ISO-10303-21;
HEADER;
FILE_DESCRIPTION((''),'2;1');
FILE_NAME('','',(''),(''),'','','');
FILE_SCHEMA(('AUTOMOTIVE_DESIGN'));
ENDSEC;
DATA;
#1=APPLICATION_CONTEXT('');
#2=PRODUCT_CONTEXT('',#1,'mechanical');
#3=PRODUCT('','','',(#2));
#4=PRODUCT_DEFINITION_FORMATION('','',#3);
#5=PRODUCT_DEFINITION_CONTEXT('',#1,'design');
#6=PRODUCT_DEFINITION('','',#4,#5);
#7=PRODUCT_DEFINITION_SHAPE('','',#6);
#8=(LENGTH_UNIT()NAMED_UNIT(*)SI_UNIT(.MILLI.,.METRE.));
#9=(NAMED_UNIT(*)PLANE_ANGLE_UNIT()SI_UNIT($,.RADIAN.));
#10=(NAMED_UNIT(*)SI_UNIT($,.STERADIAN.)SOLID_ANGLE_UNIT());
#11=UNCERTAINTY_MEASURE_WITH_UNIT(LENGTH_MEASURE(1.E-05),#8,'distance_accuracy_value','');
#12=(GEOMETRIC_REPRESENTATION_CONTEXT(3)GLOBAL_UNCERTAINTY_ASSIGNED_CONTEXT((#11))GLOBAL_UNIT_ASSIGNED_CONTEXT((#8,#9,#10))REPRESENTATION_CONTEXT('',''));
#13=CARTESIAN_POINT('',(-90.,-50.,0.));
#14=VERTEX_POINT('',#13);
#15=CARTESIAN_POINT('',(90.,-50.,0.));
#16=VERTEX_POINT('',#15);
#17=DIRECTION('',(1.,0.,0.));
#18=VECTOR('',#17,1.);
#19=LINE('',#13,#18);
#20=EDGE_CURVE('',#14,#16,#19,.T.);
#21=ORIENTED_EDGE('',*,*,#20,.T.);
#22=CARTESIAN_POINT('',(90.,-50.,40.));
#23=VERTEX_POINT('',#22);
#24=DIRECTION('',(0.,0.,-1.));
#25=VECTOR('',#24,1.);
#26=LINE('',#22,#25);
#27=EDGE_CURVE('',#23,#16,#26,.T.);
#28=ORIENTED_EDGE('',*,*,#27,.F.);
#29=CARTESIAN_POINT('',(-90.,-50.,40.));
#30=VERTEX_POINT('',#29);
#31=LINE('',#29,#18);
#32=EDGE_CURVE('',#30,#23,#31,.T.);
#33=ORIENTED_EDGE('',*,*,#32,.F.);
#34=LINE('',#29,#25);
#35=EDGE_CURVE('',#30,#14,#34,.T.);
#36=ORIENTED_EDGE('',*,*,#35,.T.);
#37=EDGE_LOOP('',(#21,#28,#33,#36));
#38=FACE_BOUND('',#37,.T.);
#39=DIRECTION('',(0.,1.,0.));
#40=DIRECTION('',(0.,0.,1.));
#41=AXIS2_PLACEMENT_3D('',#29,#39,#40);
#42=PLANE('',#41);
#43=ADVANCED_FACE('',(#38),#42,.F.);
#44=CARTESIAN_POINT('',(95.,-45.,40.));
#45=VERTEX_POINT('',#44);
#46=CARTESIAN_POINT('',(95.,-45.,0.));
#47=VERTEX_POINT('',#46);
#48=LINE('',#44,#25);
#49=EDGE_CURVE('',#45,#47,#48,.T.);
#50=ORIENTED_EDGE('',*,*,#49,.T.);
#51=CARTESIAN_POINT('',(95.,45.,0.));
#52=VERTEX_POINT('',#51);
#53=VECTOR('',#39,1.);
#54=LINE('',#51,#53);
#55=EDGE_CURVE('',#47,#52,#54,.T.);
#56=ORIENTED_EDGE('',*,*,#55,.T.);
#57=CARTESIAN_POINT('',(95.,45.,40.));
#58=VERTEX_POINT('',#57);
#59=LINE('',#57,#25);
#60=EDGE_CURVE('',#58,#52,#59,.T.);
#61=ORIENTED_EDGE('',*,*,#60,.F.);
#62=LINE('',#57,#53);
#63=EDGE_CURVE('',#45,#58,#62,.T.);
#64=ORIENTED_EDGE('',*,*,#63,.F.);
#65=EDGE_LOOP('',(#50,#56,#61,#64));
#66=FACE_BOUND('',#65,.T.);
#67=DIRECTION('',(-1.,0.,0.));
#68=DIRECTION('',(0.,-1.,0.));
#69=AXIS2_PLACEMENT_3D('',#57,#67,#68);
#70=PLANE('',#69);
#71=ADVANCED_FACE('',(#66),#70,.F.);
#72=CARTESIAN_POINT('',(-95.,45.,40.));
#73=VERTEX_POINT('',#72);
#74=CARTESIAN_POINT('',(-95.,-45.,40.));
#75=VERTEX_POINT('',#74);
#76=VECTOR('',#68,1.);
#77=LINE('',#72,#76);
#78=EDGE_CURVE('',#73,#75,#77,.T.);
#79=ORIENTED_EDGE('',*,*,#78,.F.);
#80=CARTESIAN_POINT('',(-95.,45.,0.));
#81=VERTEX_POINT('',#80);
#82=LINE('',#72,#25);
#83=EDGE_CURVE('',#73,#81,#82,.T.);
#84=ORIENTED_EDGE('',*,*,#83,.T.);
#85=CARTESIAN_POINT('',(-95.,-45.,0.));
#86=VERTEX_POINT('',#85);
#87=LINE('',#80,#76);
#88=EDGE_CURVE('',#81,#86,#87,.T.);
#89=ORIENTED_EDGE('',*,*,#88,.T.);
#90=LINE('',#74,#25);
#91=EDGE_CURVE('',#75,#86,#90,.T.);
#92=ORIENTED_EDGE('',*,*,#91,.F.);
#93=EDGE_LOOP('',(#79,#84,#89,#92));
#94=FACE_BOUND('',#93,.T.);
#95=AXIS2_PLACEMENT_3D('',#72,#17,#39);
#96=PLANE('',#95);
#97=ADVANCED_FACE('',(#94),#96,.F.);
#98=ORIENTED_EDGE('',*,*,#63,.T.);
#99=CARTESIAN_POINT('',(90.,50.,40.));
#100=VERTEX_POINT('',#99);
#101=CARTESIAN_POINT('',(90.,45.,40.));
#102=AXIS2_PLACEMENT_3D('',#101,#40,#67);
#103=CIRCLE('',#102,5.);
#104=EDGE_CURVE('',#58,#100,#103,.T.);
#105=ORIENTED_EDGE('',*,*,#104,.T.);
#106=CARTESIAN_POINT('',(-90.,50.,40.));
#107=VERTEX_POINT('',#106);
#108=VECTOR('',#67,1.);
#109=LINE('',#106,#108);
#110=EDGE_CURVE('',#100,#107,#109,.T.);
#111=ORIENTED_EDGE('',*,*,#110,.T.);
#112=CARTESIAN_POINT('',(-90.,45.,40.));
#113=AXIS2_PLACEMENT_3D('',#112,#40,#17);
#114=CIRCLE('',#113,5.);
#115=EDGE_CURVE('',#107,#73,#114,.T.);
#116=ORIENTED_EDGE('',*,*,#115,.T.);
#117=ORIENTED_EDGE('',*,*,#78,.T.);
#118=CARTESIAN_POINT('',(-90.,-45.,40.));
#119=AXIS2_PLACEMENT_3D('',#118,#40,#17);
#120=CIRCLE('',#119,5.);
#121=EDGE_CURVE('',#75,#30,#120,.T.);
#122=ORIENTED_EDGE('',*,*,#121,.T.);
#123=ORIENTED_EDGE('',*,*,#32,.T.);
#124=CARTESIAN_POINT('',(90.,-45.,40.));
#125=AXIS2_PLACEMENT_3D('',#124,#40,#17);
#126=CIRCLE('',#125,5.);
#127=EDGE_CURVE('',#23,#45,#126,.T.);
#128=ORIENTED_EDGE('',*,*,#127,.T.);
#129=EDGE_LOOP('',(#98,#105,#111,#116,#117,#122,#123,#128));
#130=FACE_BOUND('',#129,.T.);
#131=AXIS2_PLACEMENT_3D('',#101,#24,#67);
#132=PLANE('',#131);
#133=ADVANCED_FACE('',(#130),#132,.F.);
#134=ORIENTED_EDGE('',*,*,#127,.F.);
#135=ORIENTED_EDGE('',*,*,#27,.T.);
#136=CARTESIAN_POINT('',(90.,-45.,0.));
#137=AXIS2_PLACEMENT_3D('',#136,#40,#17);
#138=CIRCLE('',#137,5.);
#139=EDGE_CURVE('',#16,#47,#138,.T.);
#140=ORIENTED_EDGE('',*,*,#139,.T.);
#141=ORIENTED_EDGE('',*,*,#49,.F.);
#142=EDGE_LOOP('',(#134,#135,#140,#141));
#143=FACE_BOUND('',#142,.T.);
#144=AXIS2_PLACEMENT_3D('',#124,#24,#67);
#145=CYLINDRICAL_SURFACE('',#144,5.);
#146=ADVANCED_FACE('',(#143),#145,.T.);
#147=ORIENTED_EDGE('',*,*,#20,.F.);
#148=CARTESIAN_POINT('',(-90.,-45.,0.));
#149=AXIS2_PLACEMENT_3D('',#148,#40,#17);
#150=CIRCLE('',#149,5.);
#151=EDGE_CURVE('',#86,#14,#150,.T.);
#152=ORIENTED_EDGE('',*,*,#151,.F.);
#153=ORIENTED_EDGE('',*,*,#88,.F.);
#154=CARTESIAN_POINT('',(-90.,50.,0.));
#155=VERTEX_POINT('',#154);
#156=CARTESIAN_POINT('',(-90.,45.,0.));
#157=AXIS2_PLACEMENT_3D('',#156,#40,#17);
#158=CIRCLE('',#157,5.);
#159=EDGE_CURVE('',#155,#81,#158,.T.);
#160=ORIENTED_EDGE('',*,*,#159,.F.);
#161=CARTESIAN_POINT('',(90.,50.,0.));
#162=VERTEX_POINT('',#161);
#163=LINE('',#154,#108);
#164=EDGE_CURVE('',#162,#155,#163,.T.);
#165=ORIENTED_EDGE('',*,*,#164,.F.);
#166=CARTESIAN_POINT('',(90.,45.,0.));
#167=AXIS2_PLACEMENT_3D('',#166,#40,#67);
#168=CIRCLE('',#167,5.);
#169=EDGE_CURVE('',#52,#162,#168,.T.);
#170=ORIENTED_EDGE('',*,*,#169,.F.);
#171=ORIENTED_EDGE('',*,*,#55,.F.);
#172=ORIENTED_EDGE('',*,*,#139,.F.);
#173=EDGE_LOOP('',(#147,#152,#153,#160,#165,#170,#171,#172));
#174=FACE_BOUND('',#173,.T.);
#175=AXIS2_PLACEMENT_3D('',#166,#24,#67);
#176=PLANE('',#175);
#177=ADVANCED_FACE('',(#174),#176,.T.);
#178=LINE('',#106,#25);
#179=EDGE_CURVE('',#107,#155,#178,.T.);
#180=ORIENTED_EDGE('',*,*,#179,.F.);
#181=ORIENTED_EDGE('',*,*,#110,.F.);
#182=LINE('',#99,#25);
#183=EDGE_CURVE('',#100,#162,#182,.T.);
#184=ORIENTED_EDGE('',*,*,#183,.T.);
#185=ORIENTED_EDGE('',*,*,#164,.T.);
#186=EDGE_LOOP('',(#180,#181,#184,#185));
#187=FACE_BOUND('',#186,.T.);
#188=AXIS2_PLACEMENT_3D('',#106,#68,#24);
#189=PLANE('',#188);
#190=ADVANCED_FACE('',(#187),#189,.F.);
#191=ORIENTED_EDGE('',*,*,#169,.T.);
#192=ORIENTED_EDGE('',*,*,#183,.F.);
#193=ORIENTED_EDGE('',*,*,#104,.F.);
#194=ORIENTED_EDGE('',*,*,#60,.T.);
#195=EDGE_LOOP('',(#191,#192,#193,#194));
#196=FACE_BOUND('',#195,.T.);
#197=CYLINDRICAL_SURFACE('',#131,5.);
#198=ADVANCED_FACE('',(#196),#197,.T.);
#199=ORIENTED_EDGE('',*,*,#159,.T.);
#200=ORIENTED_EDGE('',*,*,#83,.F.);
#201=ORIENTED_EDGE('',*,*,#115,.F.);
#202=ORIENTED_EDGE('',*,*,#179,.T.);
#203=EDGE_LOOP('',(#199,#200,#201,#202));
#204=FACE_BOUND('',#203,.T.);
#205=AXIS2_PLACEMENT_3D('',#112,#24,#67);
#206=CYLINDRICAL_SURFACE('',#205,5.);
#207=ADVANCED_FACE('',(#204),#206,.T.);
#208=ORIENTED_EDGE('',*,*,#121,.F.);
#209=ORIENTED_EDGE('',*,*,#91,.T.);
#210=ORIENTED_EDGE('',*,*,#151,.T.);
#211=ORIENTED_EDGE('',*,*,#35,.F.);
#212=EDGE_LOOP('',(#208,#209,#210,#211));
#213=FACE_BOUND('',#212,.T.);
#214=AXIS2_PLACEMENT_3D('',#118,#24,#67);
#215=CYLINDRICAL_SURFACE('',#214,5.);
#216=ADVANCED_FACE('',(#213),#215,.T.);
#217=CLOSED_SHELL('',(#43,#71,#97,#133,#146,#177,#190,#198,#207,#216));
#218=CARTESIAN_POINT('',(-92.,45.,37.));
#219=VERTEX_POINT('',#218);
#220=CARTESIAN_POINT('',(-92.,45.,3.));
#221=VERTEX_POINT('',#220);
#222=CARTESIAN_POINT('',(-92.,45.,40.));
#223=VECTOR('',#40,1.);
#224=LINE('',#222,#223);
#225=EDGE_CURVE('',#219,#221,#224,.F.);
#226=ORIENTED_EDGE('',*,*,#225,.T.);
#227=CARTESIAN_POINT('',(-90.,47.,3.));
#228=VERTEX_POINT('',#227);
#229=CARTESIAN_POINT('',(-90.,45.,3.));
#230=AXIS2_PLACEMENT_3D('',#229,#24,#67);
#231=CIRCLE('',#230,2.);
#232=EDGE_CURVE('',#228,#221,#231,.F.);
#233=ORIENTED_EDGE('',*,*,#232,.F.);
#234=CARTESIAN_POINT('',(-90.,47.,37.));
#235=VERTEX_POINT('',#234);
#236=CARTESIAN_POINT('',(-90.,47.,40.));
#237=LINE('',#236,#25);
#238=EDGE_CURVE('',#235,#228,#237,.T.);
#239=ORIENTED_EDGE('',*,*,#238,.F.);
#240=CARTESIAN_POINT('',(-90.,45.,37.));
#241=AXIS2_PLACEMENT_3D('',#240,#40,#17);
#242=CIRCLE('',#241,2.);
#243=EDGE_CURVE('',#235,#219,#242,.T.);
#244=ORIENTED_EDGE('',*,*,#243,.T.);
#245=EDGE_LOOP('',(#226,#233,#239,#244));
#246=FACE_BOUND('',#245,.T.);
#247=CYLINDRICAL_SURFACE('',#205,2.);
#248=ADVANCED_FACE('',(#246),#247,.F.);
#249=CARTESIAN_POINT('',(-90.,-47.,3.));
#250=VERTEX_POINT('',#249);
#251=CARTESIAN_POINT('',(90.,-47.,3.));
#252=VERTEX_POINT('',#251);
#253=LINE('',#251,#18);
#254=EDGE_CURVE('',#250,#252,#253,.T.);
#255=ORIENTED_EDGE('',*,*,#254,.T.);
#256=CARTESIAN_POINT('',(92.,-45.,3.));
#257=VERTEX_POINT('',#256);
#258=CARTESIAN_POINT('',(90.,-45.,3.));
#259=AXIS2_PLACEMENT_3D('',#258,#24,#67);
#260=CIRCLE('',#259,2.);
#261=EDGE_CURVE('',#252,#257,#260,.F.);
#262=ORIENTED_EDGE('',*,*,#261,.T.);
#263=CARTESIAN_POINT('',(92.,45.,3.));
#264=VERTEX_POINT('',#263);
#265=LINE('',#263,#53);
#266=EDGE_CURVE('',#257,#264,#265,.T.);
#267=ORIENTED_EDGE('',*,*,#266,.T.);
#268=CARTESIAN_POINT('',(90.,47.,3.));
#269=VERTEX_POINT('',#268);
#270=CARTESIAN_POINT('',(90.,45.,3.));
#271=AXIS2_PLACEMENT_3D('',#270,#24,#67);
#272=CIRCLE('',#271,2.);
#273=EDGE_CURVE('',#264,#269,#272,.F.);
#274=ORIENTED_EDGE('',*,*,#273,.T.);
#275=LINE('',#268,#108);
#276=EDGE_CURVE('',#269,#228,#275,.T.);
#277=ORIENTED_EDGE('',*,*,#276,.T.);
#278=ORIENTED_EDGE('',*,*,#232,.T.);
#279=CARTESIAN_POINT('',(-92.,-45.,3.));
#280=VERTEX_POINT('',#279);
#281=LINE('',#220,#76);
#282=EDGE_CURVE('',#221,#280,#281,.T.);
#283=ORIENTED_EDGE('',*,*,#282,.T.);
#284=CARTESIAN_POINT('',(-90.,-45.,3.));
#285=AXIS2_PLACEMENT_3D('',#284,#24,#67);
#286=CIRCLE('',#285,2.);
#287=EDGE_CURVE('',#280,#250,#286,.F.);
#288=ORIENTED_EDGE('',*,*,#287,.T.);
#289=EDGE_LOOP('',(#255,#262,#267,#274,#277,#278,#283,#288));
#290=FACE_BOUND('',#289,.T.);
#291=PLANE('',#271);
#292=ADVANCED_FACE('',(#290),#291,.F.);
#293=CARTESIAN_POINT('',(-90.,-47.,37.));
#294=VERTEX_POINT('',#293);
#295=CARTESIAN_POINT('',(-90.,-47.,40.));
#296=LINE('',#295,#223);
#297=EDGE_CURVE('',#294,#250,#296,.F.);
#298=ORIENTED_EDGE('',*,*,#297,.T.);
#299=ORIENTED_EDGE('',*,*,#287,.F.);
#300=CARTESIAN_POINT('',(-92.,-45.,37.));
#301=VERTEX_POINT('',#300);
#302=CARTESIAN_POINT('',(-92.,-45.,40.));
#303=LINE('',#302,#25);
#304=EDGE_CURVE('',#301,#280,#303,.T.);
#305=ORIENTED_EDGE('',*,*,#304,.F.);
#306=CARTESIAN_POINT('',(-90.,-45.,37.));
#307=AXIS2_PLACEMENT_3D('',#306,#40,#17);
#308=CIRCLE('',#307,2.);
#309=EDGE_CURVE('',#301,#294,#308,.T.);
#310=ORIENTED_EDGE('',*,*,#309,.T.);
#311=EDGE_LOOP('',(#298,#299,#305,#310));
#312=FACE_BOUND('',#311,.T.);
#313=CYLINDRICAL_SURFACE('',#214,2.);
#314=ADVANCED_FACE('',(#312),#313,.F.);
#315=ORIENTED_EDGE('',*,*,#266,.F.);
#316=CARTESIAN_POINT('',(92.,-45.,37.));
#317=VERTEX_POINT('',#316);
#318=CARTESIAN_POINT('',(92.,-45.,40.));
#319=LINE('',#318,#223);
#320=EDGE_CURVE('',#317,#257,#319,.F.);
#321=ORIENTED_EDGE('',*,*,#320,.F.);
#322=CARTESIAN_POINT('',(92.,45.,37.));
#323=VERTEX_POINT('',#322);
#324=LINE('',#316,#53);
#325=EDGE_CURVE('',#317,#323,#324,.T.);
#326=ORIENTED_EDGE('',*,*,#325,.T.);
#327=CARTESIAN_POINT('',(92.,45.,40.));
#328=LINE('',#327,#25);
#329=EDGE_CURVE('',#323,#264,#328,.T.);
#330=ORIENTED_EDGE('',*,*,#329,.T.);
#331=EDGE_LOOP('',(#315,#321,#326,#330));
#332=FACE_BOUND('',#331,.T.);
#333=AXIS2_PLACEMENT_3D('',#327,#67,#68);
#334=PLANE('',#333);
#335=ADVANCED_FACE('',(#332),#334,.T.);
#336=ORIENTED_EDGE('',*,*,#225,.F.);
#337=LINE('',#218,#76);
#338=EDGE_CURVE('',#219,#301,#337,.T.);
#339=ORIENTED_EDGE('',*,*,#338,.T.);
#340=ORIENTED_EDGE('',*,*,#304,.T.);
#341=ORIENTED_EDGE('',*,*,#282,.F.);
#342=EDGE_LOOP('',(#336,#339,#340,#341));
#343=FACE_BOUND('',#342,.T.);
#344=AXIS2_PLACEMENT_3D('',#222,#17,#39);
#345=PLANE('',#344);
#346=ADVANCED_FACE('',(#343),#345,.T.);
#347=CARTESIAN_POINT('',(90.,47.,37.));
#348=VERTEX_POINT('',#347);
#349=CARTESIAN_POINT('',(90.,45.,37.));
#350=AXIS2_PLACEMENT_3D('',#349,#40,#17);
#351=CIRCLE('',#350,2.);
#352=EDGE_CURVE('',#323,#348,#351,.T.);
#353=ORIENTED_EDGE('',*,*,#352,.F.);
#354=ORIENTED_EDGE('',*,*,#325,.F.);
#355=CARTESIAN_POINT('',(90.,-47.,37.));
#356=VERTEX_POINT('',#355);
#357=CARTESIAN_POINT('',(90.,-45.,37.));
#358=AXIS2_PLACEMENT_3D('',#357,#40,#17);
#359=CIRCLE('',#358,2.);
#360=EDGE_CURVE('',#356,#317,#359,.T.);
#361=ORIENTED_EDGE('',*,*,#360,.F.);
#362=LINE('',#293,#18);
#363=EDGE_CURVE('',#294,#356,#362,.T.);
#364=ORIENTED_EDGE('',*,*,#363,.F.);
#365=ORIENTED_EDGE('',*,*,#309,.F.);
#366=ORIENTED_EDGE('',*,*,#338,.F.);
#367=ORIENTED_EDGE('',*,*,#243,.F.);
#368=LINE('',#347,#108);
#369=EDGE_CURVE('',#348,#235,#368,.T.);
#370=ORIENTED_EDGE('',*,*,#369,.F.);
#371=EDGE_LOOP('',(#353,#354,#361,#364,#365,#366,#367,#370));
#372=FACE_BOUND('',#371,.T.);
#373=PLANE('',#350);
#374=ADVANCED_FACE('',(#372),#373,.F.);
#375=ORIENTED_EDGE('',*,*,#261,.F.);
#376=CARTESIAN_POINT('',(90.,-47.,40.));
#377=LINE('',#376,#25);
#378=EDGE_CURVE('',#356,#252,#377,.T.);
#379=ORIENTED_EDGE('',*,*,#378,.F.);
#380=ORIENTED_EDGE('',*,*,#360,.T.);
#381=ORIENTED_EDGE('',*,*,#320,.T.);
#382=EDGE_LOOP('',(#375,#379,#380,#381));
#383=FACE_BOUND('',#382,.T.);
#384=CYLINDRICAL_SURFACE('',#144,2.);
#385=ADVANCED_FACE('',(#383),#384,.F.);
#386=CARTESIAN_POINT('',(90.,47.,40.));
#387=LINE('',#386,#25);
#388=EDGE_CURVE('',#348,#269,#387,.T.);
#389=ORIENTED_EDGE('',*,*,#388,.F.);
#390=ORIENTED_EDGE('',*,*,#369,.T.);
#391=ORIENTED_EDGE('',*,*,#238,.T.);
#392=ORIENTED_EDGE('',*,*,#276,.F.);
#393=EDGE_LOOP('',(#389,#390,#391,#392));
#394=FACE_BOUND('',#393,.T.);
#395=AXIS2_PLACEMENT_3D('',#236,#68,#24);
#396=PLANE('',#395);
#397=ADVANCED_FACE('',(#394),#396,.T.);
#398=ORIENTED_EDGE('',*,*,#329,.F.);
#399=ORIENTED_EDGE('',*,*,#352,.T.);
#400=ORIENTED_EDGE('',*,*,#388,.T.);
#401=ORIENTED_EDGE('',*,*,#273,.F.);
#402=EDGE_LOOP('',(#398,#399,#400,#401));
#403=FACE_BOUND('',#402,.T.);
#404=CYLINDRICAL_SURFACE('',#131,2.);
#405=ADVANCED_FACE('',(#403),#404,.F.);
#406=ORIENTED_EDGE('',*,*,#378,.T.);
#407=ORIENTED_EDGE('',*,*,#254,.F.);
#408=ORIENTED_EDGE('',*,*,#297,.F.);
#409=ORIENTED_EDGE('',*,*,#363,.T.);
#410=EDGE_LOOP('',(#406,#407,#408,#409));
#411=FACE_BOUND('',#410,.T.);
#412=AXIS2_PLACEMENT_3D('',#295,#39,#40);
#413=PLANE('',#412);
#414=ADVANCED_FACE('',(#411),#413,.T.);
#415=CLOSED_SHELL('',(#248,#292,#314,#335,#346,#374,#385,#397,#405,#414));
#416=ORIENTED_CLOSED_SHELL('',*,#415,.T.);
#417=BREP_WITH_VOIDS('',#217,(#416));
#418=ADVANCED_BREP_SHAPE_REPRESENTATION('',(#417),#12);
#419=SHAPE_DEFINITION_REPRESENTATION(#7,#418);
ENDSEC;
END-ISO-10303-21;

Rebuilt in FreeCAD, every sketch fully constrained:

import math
import FreeCAD as App
import Part
import Sketcher


def faces_at(feature, points):
    """Names of the faces that lie closest to the given points."""
    faces = feature.Shape.Faces
    near = lambda p: min(range(len(faces)), key=lambda i: faces[i].distToShape(Part.Vertex(*p))[0])
    return sorted({f"Face{near(p) + 1}" for p in points})

doc = App.newDocument("Part")
body = doc.addObject("PartDesign::Body", "Body")

# Sketch on XY plane
sketch1 = doc.addObject("Sketcher::SketchObject", "Sketch")
body.addObject(sketch1)
sketch1.AttachmentSupport = (doc.XY_Plane, [""])
sketch1.MapMode = "FlatFace"
sketch1.addGeometry([
    Part.LineSegment(App.Vector(90, 50, 0), App.Vector(-90, 50, 0)),  # 0
    Part.ArcOfCircle(Part.Circle(App.Vector(-90, 45, 0), App.Vector(0, 0, 1), 5), math.radians(90), math.radians(180)),  # 1
    Part.LineSegment(App.Vector(-95, 45, 0), App.Vector(-95, -45, 0)),  # 2
    Part.ArcOfCircle(Part.Circle(App.Vector(-90, -45, 0), App.Vector(0, 0, 1), 5), math.radians(180), math.radians(270)),  # 3
    Part.LineSegment(App.Vector(-90, -50, 0), App.Vector(90, -50, 0)),  # 4
    Part.ArcOfCircle(Part.Circle(App.Vector(90, -45, 0), App.Vector(0, 0, 1), 5), math.radians(-90), math.radians(0)),  # 5
    Part.LineSegment(App.Vector(95, -45, 0), App.Vector(95, 45, 0)),  # 6
    Part.ArcOfCircle(Part.Circle(App.Vector(90, 45, 0), App.Vector(0, 0, 1), 5), math.radians(0), math.radians(90)),  # 7
], False)
sketch1.addConstraint([
    Sketcher.Constraint("Tangent", 0, 2, 1, 1),
    Sketcher.Constraint("Tangent", 1, 2, 2, 1),
    Sketcher.Constraint("Tangent", 2, 2, 3, 1),
    Sketcher.Constraint("Tangent", 3, 2, 4, 1),
    Sketcher.Constraint("Tangent", 4, 2, 5, 1),
    Sketcher.Constraint("Tangent", 5, 2, 6, 1),
    Sketcher.Constraint("Tangent", 6, 2, 7, 1),
    Sketcher.Constraint("Tangent", 7, 2, 0, 1),
    Sketcher.Constraint("Horizontal", 0),
    Sketcher.Constraint("Vertical", 2),
    Sketcher.Constraint("Horizontal", 4),
    Sketcher.Constraint("Vertical", 6),
    Sketcher.Constraint("Equal", 1, 3),
    Sketcher.Constraint("Equal", 3, 5),
    Sketcher.Constraint("Equal", 5, 7),
    Sketcher.Constraint("Symmetric", 1, 3, 5, 3, -1, 1),
    Sketcher.Constraint("Radius", 1, 5.0),
    Sketcher.Constraint("DistanceX", 0, 2, 0, 1, 180.0),
    Sketcher.Constraint("DistanceY", 2, 2, 2, 1, 90.0),
])
pad1 = doc.addObject("PartDesign::Pad", "Pad")
body.addObject(pad1)
pad1.Profile = sketch1
pad1.Length = 40
doc.recompute()

thickness = doc.addObject("PartDesign::Thickness", "Thickness")
body.addObject(thickness)
thickness.Base = (pad1, faces_at(pad1, [(0, 0, 40)]))
thickness.Value = 3
thickness.Reversed = True
thickness.Join = "Intersection"

# Sketch on XY plane
sketch2 = doc.addObject("Sketcher::SketchObject", "Sketch001")
body.addObject(sketch2)
sketch2.AttachmentSupport = (doc.XY_Plane, [""])
sketch2.MapMode = "FlatFace"
sketch2.AttachmentOffset = App.Placement(App.Vector(0, 0, 37), App.Rotation())
sketch2.addGeometry([
    Part.LineSegment(App.Vector(90, 47, 0), App.Vector(-90, 47, 0)),  # 0
    Part.ArcOfCircle(Part.Circle(App.Vector(-90, 45, 0), App.Vector(0, 0, 1), 2), math.radians(90), math.radians(180)),  # 1
    Part.LineSegment(App.Vector(-92, 45, 0), App.Vector(-92, -45, 0)),  # 2
    Part.ArcOfCircle(Part.Circle(App.Vector(-90, -45, 0), App.Vector(0, 0, 1), 2), math.radians(-180), math.radians(-90)),  # 3
    Part.LineSegment(App.Vector(-90, -47, 0), App.Vector(90, -47, 0)),  # 4
    Part.ArcOfCircle(Part.Circle(App.Vector(90, -45, 0), App.Vector(0, 0, 1), 2), math.radians(-90), math.radians(0)),  # 5
    Part.LineSegment(App.Vector(92, -45, 0), App.Vector(92, 45, 0)),  # 6
    Part.ArcOfCircle(Part.Circle(App.Vector(90, 45, 0), App.Vector(0, 0, 1), 2), math.radians(0), math.radians(90)),  # 7
], False)
sketch2.addConstraint([
    Sketcher.Constraint("Tangent", 0, 2, 1, 1),
    Sketcher.Constraint("Tangent", 1, 2, 2, 1),
    Sketcher.Constraint("Tangent", 2, 2, 3, 1),
    Sketcher.Constraint("Tangent", 3, 2, 4, 1),
    Sketcher.Constraint("Tangent", 4, 2, 5, 1),
    Sketcher.Constraint("Tangent", 5, 2, 6, 1),
    Sketcher.Constraint("Tangent", 6, 2, 7, 1),
    Sketcher.Constraint("Tangent", 7, 2, 0, 1),
    Sketcher.Constraint("Horizontal", 0),
    Sketcher.Constraint("Vertical", 2),
    Sketcher.Constraint("Horizontal", 4),
    Sketcher.Constraint("Vertical", 6),
    Sketcher.Constraint("Equal", 1, 3),
    Sketcher.Constraint("Equal", 3, 5),
    Sketcher.Constraint("Equal", 5, 7),
    Sketcher.Constraint("Symmetric", 1, 3, 5, 3, -1, 1),
    Sketcher.Constraint("Radius", 1, 2.0),
    Sketcher.Constraint("DistanceX", 0, 2, 0, 1, 180.0),
    Sketcher.Constraint("DistanceY", 2, 2, 2, 1, 90.0),
])
pad2 = doc.addObject("PartDesign::Pad", "Pad001")
body.addObject(pad2)
pad2.Profile = sketch2
pad2.Length = 3

doc.recompute()
